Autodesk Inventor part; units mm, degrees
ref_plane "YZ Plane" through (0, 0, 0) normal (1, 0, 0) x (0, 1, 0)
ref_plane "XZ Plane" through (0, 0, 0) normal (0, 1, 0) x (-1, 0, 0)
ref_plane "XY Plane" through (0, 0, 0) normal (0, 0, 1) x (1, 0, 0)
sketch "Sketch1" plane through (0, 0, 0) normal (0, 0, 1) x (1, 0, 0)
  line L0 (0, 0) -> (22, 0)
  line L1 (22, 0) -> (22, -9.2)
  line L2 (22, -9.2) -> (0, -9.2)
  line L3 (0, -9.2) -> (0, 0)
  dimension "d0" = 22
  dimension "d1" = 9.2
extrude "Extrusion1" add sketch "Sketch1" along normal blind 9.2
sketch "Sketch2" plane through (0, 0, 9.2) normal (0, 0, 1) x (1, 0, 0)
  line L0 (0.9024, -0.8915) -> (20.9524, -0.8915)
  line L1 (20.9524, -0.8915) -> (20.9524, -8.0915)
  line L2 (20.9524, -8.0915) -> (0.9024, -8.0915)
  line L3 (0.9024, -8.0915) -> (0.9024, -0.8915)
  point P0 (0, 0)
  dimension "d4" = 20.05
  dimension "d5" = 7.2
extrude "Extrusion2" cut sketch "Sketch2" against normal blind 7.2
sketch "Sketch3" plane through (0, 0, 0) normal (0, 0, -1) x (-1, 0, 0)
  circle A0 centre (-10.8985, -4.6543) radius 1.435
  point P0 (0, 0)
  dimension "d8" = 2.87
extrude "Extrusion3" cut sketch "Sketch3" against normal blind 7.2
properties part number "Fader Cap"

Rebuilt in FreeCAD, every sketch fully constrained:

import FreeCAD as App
import Part
import Sketcher

V = App.Vector
Q = App.Units.Quantity


def add_polygon(sketch, points):
    """Adds a closed chain of lines whose ends are joined by coincident constraints."""
    first, n = sketch.GeometryCount, len(points)
    for a, b in zip(points, points[1:] + points[:1]):
        sketch.addGeometry(Part.LineSegment(App.Vector(*a, 0), App.Vector(*b, 0)), False)
    for i in range(n):
        sketch.addConstraint(Sketcher.Constraint("Coincident", first + i, 2, first + (i + 1) % n, 1))

doc = App.newDocument("Part")
body = doc.addObject("PartDesign::Body", "Body")

# Sketch on XY plane
sketch1 = doc.addObject("Sketcher::SketchObject", "Sketch")
body.addObject(sketch1)
sketch1.AttachmentSupport = (doc.XY_Plane, [""])
sketch1.MapMode = "FlatFace"
add_polygon(sketch1, [(22, 0), (0, 0), (0, -9), (22, -9)])  # lines 0-3
sketch1.addConstraint([
    Sketcher.Constraint("Horizontal", 0),
    Sketcher.Constraint("Vertical", 1),
    Sketcher.Constraint("Horizontal", 2),
    Sketcher.Constraint("Vertical", 3),
    Sketcher.Constraint("Coincident", 0, 2, -1, 1),
    Sketcher.Constraint("DistanceX", 0, 2, 0, 1, Q("22 mm")),
    Sketcher.Constraint("DistanceY", 1, 2, 1, 1, Q("9.2 mm")),
])
pad1 = doc.addObject("PartDesign::Pad", "Pad")
body.addObject(pad1)
pad1.Profile = sketch1
pad1.Length = 9.2

# Sketch on XY plane
sketch2 = doc.addObject("Sketcher::SketchObject", "Sketch001")
body.addObject(sketch2)
sketch2.AttachmentSupport = (doc.XY_Plane, [""])
sketch2.MapMode = "FlatFace"
sketch2.AttachmentOffset = App.Placement(V(0, 0, 9.2), App.Rotation())
add_polygon(sketch2, [(21, -1), (1, -1), (1, -8), (21, -8)])  # lines 0-3
sketch2.addConstraint([
    Sketcher.Constraint("Horizontal", 0),
    Sketcher.Constraint("Vertical", 1),
    Sketcher.Constraint("Horizontal", 2),
    Sketcher.Constraint("Vertical", 3),
    Sketcher.Constraint("DistanceY", 1, 2, 1, 1, Q("7.2 mm")),
    Sketcher.Constraint("DistanceX", 0, 2, 0, 1, Q("20.05 mm")),
    Sketcher.Constraint("DistanceX", -1, 1, 0, 2, Q("0.9024 mm")),
    Sketcher.Constraint("DistanceY", 0, 2, -1, 1, Q("0.8915 mm")),
])
pocket1 = doc.addObject("PartDesign::Pocket", "Pocket")
body.addObject(pocket1)
pocket1.Profile = sketch2
pocket1.Length = 7.2

# Sketch on XY plane
sketch3 = doc.addObject("Sketcher::SketchObject", "Sketch002")
body.addObject(sketch3)
sketch3.AttachmentSupport = (doc.XY_Plane, [""])
sketch3.MapMode = "FlatFace"
sketch3.addGeometry(Part.Circle(V(10.9, -4.7, 0), V(0, 0, 1), 1.4), False)
sketch3.addConstraint([
    Sketcher.Constraint("Diameter", 0, Q("2.87 mm")),
    Sketcher.Constraint("DistanceX", -1, 1, 0, 3, Q("10.8985 mm")),
    Sketcher.Constraint("DistanceY", 0, 3, -1, 1, Q("4.6543 mm")),
])
pocket2 = doc.addObject("PartDesign::Pocket", "Pocket001")
body.addObject(pocket2)
pocket2.Profile = sketch3
pocket2.Length = 7.2
pocket2.Reversed = True

doc.recompute()
